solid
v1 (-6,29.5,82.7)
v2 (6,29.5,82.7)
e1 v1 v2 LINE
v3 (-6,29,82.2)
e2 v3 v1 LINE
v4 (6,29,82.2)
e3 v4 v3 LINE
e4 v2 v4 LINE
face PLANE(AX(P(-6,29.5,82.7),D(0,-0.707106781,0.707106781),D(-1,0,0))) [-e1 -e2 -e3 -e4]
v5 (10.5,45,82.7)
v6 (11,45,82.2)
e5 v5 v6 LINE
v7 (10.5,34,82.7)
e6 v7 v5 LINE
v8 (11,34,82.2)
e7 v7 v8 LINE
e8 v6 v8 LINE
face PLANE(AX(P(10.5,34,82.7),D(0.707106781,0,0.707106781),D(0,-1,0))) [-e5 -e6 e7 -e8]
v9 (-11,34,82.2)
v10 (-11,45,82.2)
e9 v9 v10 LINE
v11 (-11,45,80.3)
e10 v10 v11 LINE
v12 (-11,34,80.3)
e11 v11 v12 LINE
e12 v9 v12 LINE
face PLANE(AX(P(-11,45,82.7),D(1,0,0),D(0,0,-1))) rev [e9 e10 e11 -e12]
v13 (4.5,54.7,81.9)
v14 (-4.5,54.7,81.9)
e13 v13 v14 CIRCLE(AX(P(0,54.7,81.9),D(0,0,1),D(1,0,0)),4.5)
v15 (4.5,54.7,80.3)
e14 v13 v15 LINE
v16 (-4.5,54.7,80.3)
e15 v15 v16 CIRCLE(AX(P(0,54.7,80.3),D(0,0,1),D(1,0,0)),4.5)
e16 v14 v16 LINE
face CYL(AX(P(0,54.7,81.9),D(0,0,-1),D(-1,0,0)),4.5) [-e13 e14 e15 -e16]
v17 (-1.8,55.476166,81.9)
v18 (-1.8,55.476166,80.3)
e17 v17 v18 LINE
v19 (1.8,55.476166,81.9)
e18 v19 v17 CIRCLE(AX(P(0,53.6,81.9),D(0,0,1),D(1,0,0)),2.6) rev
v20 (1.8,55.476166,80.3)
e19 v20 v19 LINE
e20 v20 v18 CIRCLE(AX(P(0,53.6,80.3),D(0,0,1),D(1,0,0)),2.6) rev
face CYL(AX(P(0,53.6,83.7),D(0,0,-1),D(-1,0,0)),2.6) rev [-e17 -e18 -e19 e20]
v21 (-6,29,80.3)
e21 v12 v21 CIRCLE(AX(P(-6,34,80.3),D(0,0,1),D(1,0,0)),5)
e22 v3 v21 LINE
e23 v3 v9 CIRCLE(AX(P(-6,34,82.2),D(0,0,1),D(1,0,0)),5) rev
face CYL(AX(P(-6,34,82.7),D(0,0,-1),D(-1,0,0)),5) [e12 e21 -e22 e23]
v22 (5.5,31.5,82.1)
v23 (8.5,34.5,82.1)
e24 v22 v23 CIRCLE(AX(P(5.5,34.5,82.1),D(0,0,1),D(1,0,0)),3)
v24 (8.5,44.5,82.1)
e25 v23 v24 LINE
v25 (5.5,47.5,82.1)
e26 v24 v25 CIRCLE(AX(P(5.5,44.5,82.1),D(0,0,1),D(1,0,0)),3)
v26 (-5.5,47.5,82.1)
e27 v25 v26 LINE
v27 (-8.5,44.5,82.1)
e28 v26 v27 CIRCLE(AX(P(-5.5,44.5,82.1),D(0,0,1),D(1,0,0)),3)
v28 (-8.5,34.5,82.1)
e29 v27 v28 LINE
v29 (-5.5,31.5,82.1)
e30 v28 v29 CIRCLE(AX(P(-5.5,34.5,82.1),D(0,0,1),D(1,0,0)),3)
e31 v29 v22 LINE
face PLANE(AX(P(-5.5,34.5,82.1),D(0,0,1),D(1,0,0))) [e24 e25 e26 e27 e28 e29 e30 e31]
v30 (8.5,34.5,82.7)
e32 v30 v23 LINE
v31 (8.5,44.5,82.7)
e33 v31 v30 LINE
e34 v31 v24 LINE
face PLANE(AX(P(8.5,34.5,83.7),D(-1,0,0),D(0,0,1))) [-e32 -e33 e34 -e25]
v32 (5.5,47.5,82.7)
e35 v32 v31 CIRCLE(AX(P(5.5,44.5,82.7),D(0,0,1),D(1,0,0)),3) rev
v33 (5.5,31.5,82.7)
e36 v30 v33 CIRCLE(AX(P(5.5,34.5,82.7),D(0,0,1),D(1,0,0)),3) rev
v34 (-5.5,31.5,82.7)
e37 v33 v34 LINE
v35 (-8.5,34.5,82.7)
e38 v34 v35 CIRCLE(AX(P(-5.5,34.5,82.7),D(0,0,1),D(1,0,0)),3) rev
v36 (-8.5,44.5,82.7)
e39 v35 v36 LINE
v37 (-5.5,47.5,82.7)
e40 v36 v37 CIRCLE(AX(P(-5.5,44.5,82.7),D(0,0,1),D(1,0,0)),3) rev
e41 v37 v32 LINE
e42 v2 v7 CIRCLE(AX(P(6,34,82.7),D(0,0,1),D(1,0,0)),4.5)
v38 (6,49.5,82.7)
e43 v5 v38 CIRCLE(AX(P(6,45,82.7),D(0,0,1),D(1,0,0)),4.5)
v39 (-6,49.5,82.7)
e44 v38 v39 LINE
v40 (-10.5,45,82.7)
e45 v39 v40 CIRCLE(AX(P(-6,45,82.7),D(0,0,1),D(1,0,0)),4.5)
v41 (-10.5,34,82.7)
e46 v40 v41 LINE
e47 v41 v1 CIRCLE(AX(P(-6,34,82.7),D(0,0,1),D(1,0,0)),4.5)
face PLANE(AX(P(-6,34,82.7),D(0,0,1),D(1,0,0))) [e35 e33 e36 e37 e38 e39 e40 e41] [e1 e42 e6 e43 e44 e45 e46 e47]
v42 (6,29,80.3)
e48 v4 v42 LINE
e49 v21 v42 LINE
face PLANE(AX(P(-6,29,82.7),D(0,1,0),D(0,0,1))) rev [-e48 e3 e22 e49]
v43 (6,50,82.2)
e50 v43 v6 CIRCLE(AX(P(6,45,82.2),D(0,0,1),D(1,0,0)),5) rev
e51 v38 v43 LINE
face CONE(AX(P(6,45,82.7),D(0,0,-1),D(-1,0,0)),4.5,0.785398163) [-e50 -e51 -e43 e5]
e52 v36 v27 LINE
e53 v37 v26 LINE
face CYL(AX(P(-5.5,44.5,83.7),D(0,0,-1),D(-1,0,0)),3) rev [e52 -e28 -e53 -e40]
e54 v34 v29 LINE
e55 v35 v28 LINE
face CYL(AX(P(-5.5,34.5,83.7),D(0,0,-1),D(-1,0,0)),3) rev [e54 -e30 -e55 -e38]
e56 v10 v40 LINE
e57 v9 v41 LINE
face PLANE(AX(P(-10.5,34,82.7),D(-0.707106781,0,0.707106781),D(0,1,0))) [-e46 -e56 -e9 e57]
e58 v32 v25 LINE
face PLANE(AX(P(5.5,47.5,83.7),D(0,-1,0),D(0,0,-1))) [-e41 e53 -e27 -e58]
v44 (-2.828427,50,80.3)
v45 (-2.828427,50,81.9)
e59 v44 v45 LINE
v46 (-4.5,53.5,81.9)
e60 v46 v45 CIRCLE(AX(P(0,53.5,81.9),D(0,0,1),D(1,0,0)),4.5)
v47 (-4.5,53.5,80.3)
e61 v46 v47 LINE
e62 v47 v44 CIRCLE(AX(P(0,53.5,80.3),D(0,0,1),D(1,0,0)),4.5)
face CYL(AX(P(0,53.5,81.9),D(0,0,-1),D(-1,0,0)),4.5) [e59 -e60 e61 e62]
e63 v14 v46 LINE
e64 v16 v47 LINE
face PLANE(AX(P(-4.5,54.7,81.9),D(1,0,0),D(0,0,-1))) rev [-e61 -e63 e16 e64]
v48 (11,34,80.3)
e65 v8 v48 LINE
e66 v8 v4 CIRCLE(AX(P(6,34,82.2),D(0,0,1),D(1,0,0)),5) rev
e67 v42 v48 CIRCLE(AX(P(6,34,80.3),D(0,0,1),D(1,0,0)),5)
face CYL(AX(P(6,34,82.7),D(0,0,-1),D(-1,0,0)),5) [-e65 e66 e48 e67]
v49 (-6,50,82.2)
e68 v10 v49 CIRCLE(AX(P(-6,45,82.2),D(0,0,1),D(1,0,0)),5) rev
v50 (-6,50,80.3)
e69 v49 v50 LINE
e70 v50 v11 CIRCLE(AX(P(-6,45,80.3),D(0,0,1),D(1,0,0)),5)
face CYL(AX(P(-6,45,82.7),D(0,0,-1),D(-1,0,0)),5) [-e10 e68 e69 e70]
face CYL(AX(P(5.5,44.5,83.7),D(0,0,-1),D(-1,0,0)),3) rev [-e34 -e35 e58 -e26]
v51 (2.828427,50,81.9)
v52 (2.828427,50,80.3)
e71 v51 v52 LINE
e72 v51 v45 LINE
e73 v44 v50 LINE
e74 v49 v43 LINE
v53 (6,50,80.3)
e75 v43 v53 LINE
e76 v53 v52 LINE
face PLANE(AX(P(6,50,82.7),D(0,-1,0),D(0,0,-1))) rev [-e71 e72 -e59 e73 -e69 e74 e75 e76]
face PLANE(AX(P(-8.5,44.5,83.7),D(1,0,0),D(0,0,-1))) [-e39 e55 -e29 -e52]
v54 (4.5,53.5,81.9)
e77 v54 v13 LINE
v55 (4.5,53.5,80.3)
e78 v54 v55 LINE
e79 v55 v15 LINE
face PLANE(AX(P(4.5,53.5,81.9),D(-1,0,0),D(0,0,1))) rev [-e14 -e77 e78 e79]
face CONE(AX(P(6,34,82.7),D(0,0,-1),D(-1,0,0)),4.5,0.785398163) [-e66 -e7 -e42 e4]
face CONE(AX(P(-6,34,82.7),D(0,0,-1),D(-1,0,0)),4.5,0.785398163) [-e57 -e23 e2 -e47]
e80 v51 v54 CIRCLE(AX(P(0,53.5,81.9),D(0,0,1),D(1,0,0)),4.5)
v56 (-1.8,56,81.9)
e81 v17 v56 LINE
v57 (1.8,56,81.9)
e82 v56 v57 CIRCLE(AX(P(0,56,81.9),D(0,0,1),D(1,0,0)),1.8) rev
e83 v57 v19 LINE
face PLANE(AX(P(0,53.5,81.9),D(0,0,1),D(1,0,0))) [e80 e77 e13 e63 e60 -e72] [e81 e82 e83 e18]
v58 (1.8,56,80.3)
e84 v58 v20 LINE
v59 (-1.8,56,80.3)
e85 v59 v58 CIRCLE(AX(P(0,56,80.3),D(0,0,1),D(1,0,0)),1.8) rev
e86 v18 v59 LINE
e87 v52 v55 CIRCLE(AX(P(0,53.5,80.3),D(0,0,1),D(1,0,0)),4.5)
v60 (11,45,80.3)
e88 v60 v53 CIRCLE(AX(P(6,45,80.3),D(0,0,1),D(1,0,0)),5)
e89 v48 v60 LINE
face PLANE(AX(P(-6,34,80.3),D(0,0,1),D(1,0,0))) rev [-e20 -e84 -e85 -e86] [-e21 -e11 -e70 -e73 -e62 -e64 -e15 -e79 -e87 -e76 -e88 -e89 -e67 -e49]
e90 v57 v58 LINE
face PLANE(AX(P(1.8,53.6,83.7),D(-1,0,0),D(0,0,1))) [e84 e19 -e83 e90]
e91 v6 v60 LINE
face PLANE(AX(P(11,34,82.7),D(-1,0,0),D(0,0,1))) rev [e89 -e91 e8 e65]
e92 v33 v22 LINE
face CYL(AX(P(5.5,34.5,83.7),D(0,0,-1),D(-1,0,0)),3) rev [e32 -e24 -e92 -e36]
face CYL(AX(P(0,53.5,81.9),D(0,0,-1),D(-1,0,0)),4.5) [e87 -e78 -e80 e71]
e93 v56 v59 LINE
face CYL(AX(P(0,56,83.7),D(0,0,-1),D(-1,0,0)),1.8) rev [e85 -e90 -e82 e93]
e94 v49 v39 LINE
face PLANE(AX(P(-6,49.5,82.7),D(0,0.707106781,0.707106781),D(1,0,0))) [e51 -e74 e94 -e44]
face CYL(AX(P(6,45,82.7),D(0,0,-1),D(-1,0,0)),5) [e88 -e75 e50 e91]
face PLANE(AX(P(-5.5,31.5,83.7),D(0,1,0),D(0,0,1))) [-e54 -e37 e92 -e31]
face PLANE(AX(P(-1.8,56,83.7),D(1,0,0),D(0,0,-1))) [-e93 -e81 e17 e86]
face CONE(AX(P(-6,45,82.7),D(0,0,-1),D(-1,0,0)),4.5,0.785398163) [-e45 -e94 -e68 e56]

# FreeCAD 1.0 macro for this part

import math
import FreeCAD as App
import Part
import Sketcher
from FreeCAD import Vector


def edges_at(feature, points):
    """Names of the edges that pass closest to the given points."""
    edges = feature.Shape.Edges
    near = lambda p: min(range(len(edges)), key=lambda i: edges[i].distToShape(Part.Vertex(*p))[0])
    return sorted({f"Edge{near(p) + 1}" for p in points})

doc = App.newDocument("Part")
body = doc.addObject("PartDesign::Body", "Body")

# Sketch on XY plane
sketch1 = body.newObject("Sketcher::SketchObject", "Sketch")
sketch1.AttachmentSupport = (doc.getObject("XY_Plane"), [""])
sketch1.MapMode = "FlatFace"
sketch1.AttachmentOffset = App.Placement(Vector(0, 0, 80.3), App.Rotation())
sketch1.addGeometry([
    Part.LineSegment(Vector(-6, 29, 0), Vector(6, 29, 0)),  # 0
    Part.ArcOfCircle(Part.Circle(Vector(6, 34, 0), Vector(0, 0, 1), 5), math.radians(-90), math.radians(0)),  # 1
    Part.LineSegment(Vector(11, 34, 0), Vector(11, 45, 0)),  # 2
    Part.ArcOfCircle(Part.Circle(Vector(6, 45, 0), Vector(0, 0, 1), 5), math.radians(0), math.radians(90)),  # 3
    Part.LineSegment(Vector(6, 50, 0), Vector(-6, 50, 0)),  # 4
    Part.ArcOfCircle(Part.Circle(Vector(-6, 45, 0), Vector(0, 0, 1), 5), math.radians(90), math.radians(180)),  # 5
    Part.LineSegment(Vector(-11, 45, 0), Vector(-11, 34, 0)),  # 6
    Part.ArcOfCircle(Part.Circle(Vector(-6, 34, 0), Vector(0, 0, 1), 5), math.radians(180), math.radians(270)),  # 7
], False)
sketch1.addConstraint([
    Sketcher.Constraint("Tangent", 0, 2, 1, 1),
    Sketcher.Constraint("Tangent", 1, 2, 2, 1),
    Sketcher.Constraint("Tangent", 2, 2, 3, 1),
    Sketcher.Constraint("Tangent", 3, 2, 4, 1),
    Sketcher.Constraint("Tangent", 4, 2, 5, 1),
    Sketcher.Constraint("Tangent", 5, 2, 6, 1),
    Sketcher.Constraint("Tangent", 6, 2, 7, 1),
    Sketcher.Constraint("Tangent", 7, 2, 0, 1),
    Sketcher.Constraint("Horizontal", 0),
    Sketcher.Constraint("Vertical", 2),
    Sketcher.Constraint("Horizontal", 4),
    Sketcher.Constraint("Vertical", 6),
    Sketcher.Constraint("Equal", 1, 3),
    Sketcher.Constraint("Equal", 3, 5),
    Sketcher.Constraint("Equal", 5, 7),
    Sketcher.Constraint("Radius", 1, 5.0),
    Sketcher.Constraint("DistanceX", 0, 1, 0, 2, 12.0),
    Sketcher.Constraint("DistanceY", 2, 1, 2, 2, 11.0),
    Sketcher.Constraint("DistanceX", -1, 1, 1, 3, 6.0),
    Sketcher.Constraint("DistanceY", -1, 1, 1, 3, 34.0),
])
pad1 = body.newObject("PartDesign::Pad", "Pad")
pad1.Profile = sketch1
pad1.Length = 2.4

# Sketch on XY plane
sketch2 = body.newObject("Sketcher::SketchObject", "Sketch001")
sketch2.AttachmentSupport = (doc.getObject("XY_Plane"), [""])
sketch2.MapMode = "FlatFace"
sketch2.AttachmentOffset = App.Placement(Vector(0, 0, 80.3), App.Rotation())
sketch2.addGeometry([
    Part.LineSegment(Vector(4.5, 53.5, 0), Vector(4.5, 54.7, 0)),  # 0
    Part.ArcOfCircle(Part.Circle(Vector(0, 54.7, 0), Vector(0, 0, 1), 4.5), math.radians(0), math.radians(90)),  # 1
    Part.ArcOfCircle(Part.Circle(Vector(0, 54.7, 0), Vector(0, 0, 1), 4.5), math.radians(90), math.radians(180)),  # 2
    Part.LineSegment(Vector(-4.5, 54.7, 0), Vector(-4.5, 53.5, 0)),  # 3
    Part.ArcOfCircle(Part.Circle(Vector(0, 53.5, 0), Vector(0, 0, 1), 4.5), math.radians(-180), math.radians(-90)),  # 4
    Part.ArcOfCircle(Part.Circle(Vector(0, 53.5, 0), Vector(0, 0, 1), 4.5), math.radians(-90), math.radians(0)),  # 5
], False)
sketch2.addConstraint([
    Sketcher.Constraint("Tangent", 0, 2, 1, 1),
    Sketcher.Constraint("Tangent", 1, 2, 2, 1),
    Sketcher.Constraint("Tangent", 2, 2, 3, 1),
    Sketcher.Constraint("Tangent", 3, 2, 4, 1),
    Sketcher.Constraint("Tangent", 4, 2, 5, 1),
    Sketcher.Constraint("Tangent", 5, 2, 0, 1),
    Sketcher.Constraint("Vertical", 0),
    Sketcher.Constraint("Vertical", 3),
    Sketcher.Constraint("Equal", 1, 2),
    Sketcher.Constraint("Equal", 2, 4),
    Sketcher.Constraint("PointOnObject", 1, 3, -2),
    Sketcher.Constraint("PointOnObject", 1, 2, -2),
    Sketcher.Constraint("PointOnObject", 4, 2, -2),
    Sketcher.Constraint("Radius", 1, 4.5),
    Sketcher.Constraint("DistanceY", 0, 1, 0, 2, 1.2),
    Sketcher.Constraint("DistanceY", -1, 1, 4, 2, 49.0),
])
pad2 = body.newObject("PartDesign::Pad", "Pad001")
pad2.Profile = sketch2
pad2.Length = 1.6
body2 = doc.addObject("PartDesign::Body", "Body001")

# Sketch on XY plane
sketch3 = body2.newObject("Sketcher::SketchObject", "Sketch002")
sketch3.AttachmentSupport = (doc.getObject("XY_Plane001"), [""])
sketch3.MapMode = "FlatFace"
sketch3.AttachmentOffset = App.Placement(Vector(0, 0, 79.3), App.Rotation())
sketch3.addGeometry([
    Part.LineSegment(Vector(-1.8, 56, 0), Vector(-1.8, 53.6, 0)),
    Part.ArcOfCircle(Part.Circle(Vector(0, 53.6, 0), Vector(0, 0, 1), 1.8), math.radians(180), math.radians(360)),
    Part.LineSegment(Vector(1.8, 53.6, 0), Vector(1.8, 56, 0)),
    Part.ArcOfCircle(Part.Circle(Vector(0, 56, 0), Vector(0, 0, 1), 1.8), math.radians(0), math.radians(180)),
], False)
sketch3.addConstraint([
    Sketcher.Constraint("Tangent", 0, 2, 1, 1),
    Sketcher.Constraint("Tangent", 1, 2, 2, 1),
    Sketcher.Constraint("Tangent", 2, 2, 3, 1),
    Sketcher.Constraint("Tangent", 3, 2, 0, 1),
    Sketcher.Constraint("Vertical", 0),
    Sketcher.Constraint("Vertical", 2),
    Sketcher.Constraint("PointOnObject", 1, 3, -2),
    Sketcher.Constraint("Radius", 1, 1.8),
    Sketcher.Constraint("DistanceY", 0, 2, 0, 1, 2.4),
    Sketcher.Constraint("DistanceY", -1, 1, 3, 3, 56.0),
])
pad3 = body2.newObject("PartDesign::Pad", "Pad002")
pad3.Profile = sketch3
pad3.Length = 4.4
doc.recompute()

boolean = body.newObject("PartDesign::Boolean", "Boolean")
boolean.Type = "Cut"
boolean.addObjects([body2])
body3 = doc.addObject("PartDesign::Body", "Body002")

# Sketch on XY plane
sketch4 = body3.newObject("Sketcher::SketchObject", "Sketch003")
sketch4.AttachmentSupport = (doc.getObject("XY_Plane002"), [""])
sketch4.MapMode = "FlatFace"
sketch4.AttachmentOffset = App.Placement(Vector(0, 0, 79.3), App.Rotation())
sketch4.addGeometry(Part.Circle(Vector(0, 53.6, 0), Vector(0, 0, 1), 2.6), False)
sketch4.addConstraint([
    Sketcher.Constraint("PointOnObject", 0, 3, -2),
    Sketcher.Constraint("Diameter", 0, 5.2),
    Sketcher.Constraint("DistanceY", -1, 1, 0, 3, 53.6),
])
pad4 = body3.newObject("PartDesign::Pad", "Pad003")
pad4.Profile = sketch4
pad4.Length = 4.4
doc.recompute()

boolean2 = body.newObject("PartDesign::Boolean", "Boolean001")
boolean2.Type = "Cut"
boolean2.addObjects([body3])
body4 = doc.addObject("PartDesign::Body", "Body003")

# Sketch on XY plane
sketch5 = body4.newObject("Sketcher::SketchObject", "Sketch004")
sketch5.AttachmentSupport = (doc.getObject("XY_Plane003"), [""])
sketch5.MapMode = "FlatFace"
sketch5.AttachmentOffset = App.Placement(Vector(0, 0, 82.1), App.Rotation())
sketch5.addGeometry([
    Part.LineSegment(Vector(-5.5, 31.5, 0), Vector(5.5, 31.5, 0)),  # 0
    Part.ArcOfCircle(Part.Circle(Vector(5.5, 34.5, 0), Vector(0, 0, 1), 3), math.radians(-90), math.radians(0)),  # 1
    Part.LineSegment(Vector(8.5, 34.5, 0), Vector(8.5, 44.5, 0)),  # 2
    Part.ArcOfCircle(Part.Circle(Vector(5.5, 44.5, 0), Vector(0, 0, 1), 3), math.radians(0), math.radians(90)),  # 3
    Part.LineSegment(Vector(5.5, 47.5, 0), Vector(-5.5, 47.5, 0)),  # 4
    Part.ArcOfCircle(Part.Circle(Vector(-5.5, 44.5, 0), Vector(0, 0, 1), 3), math.radians(90), math.radians(180)),  # 5
    Part.LineSegment(Vector(-8.5, 44.5, 0), Vector(-8.5, 34.5, 0)),  # 6
    Part.ArcOfCircle(Part.Circle(Vector(-5.5, 34.5, 0), Vector(0, 0, 1), 3), math.radians(180), math.radians(270)),  # 7
], False)
sketch5.addConstraint([
    Sketcher.Constraint("Tangent", 0, 2, 1, 1),
    Sketcher.Constraint("Tangent", 1, 2, 2, 1),
    Sketcher.Constraint("Tangent", 2, 2, 3, 1),
    Sketcher.Constraint("Tangent", 3, 2, 4, 1),
    Sketcher.Constraint("Tangent", 4, 2, 5, 1),
    Sketcher.Constraint("Tangent", 5, 2, 6, 1),
    Sketcher.Constraint("Tangent", 6, 2, 7, 1),
    Sketcher.Constraint("Tangent", 7, 2, 0, 1),
    Sketcher.Constraint("Horizontal", 0),
    Sketcher.Constraint("Vertical", 2),
    Sketcher.Constraint("Horizontal", 4),
    Sketcher.Constraint("Vertical", 6),
    Sketcher.Constraint("Equal", 1, 3),
    Sketcher.Constraint("Equal", 3, 5),
    Sketcher.Constraint("Equal", 5, 7),
    Sketcher.Constraint("Radius", 1, 3.0),
    Sketcher.Constraint("DistanceX", 0, 1, 0, 2, 11.0),
    Sketcher.Constraint("DistanceY", 2, 1, 2, 2, 10.0),
    Sketcher.Constraint("DistanceX", -1, 1, 1, 3, 5.5),
    Sketcher.Constraint("DistanceY", -1, 1, 1, 3, 34.5),
])
pad5 = body4.newObject("PartDesign::Pad", "Pad004")
pad5.Profile = sketch5
pad5.Length = 1.6
doc.recompute()

boolean3 = body.newObject("PartDesign::Boolean", "Boolean002")
boolean3.Type = "Cut"
boolean3.addObjects([body4])
doc.recompute()

chamfer = body.newObject("PartDesign::Chamfer", "Chamfer")
chamfer.Base = (boolean3, edges_at(boolean3, [
    (9.536, 30.464, 82.7),
    (11, 39.5, 82.7),
    (9.536, 48.536, 82.7),
    (0, 50, 82.7),
    (-9.536, 48.536, 82.7),
    (-11, 39.5, 82.7),
    (-9.536, 30.464, 82.7),
    (0, 29, 82.7),
]))
chamfer.Size = 0.5

doc.recompute()
